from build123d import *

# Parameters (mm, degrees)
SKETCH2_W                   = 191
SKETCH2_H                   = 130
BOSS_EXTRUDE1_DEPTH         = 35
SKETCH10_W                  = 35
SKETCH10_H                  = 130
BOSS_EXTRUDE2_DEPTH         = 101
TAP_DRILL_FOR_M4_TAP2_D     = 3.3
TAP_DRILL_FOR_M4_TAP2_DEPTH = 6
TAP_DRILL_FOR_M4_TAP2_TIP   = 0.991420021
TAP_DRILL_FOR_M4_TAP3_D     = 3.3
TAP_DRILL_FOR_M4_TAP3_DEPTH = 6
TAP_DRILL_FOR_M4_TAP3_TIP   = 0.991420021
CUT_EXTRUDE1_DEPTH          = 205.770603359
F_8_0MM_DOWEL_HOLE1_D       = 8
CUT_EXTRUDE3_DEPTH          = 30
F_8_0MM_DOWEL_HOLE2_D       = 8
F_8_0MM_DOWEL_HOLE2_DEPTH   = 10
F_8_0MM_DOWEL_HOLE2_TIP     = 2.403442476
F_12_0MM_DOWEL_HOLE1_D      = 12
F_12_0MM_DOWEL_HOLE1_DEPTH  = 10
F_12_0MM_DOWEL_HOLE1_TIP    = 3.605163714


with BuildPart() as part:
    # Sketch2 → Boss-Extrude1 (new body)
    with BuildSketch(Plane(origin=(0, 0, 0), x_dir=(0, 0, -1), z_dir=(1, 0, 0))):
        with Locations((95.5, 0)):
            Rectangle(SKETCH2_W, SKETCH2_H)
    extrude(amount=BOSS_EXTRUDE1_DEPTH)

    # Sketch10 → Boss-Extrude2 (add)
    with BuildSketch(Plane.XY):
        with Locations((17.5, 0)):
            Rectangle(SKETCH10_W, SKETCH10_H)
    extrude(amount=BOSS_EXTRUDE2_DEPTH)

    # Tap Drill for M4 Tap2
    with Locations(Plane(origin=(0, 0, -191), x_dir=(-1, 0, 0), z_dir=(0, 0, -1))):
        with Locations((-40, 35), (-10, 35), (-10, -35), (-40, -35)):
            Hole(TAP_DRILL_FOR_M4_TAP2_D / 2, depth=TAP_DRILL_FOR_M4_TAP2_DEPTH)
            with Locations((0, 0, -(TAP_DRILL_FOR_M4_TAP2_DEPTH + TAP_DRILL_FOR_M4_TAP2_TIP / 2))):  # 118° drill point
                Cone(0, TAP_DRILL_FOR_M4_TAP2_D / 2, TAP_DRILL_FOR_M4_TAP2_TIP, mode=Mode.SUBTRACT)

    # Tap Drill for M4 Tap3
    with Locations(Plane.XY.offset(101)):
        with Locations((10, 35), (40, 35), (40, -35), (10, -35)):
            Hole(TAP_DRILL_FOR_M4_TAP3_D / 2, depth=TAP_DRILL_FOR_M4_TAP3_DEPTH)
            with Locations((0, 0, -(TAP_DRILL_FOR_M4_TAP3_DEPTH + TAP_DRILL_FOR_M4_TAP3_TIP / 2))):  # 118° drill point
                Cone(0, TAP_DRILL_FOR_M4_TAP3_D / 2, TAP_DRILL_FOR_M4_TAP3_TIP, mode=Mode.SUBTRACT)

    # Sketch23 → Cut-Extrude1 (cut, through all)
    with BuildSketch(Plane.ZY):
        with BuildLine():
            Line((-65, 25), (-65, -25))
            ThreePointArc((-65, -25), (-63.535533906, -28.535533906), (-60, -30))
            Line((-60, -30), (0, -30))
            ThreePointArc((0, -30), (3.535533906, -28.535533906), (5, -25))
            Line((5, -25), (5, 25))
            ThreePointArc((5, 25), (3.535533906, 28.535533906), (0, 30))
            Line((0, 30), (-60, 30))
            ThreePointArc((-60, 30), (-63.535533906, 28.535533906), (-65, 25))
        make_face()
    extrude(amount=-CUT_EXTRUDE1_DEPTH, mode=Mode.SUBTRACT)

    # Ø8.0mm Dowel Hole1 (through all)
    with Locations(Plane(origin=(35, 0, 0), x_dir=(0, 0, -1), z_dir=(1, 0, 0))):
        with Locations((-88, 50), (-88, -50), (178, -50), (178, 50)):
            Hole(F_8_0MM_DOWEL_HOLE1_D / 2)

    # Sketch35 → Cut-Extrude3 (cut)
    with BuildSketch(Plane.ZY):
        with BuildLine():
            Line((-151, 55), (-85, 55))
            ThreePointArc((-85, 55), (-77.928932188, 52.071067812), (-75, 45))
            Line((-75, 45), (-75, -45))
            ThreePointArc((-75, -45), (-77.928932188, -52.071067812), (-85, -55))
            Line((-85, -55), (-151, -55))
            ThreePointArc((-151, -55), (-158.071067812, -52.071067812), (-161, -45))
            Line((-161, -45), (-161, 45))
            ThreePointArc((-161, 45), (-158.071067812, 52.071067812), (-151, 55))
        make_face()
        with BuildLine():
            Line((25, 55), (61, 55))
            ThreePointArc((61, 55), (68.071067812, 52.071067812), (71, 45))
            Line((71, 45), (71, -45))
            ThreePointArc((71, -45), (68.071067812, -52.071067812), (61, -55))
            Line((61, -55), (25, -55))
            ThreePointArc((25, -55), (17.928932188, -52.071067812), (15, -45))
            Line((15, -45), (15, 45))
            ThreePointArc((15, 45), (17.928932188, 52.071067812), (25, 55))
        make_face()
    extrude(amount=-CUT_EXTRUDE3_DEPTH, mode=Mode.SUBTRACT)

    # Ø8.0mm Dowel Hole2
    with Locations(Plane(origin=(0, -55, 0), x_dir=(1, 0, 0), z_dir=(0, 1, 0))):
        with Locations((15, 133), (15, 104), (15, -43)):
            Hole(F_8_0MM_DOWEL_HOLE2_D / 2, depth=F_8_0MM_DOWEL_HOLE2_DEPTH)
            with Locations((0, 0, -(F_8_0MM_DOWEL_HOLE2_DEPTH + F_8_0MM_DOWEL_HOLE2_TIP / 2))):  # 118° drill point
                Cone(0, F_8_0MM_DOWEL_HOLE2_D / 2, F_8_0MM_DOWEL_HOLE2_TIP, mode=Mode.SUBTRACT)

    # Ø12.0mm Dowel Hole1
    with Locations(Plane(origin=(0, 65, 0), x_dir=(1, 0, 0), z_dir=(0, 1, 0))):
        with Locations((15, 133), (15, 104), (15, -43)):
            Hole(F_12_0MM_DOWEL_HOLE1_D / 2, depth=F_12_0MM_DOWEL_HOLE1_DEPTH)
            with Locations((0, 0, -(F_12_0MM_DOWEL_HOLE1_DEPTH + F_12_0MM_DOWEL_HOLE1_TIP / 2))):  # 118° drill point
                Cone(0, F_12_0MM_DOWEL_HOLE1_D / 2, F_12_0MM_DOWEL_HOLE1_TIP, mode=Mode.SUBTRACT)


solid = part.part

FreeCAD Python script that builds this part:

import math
import FreeCAD as App
import Part
import Sketcher
from FreeCAD import Vector


def add_polygon(sketch, points):
    """Adds a closed chain of lines whose ends are joined by coincident constraints."""
    first, n = sketch.GeometryCount, len(points)
    for a, b in zip(points, points[1:] + points[:1]):
        sketch.addGeometry(Part.LineSegment(App.Vector(*a, 0), App.Vector(*b, 0)), False)
    for i in range(n):
        sketch.addConstraint(Sketcher.Constraint("Coincident", first + i, 2, first + (i + 1) % n, 1))

doc = App.newDocument("Part")
body = doc.addObject("PartDesign::Body", "Body")

# Sketch on YZ plane
sketch1 = body.newObject("Sketcher::SketchObject", "Sketch")
sketch1.AttachmentSupport = (doc.getObject("YZ_Plane"), [""])
sketch1.MapMode = "FlatFace"
add_polygon(sketch1, [(65, 0), (-65, 0), (-65, -191), (65, -191)])  # lines 0-3
sketch1.addConstraint([
    Sketcher.Constraint("Horizontal", 0),
    Sketcher.Constraint("Vertical", 1),
    Sketcher.Constraint("Horizontal", 2),
    Sketcher.Constraint("Vertical", 3),
    Sketcher.Constraint("Symmetric", 0, 2, 3, 2, -1, 1),
    Sketcher.Constraint("DistanceX", 0, 2, 0, 1, 130.0),
    Sketcher.Constraint("DistanceY", 1, 2, 1, 1, 191.0),
])
pad1 = body.newObject("PartDesign::Pad", "Pad")
pad1.Profile = sketch1
pad1.Length = 35

# Sketch on XY plane
sketch2 = body.newObject("Sketcher::SketchObject", "Sketch001")
sketch2.AttachmentSupport = (doc.getObject("XY_Plane"), [""])
sketch2.MapMode = "FlatFace"
add_polygon(sketch2, [(0, 65), (0, -65), (35, -65), (35, 65)])  # lines 0-3
sketch2.addConstraint([
    Sketcher.Constraint("Vertical", 0),
    Sketcher.Constraint("Horizontal", 1),
    Sketcher.Constraint("Vertical", 2),
    Sketcher.Constraint("Horizontal", 3),
    Sketcher.Constraint("Symmetric", 0, 2, 3, 2, -1, 1),
    Sketcher.Constraint("DistanceX", 1, 1, 1, 2, 35.0),
    Sketcher.Constraint("DistanceY", 0, 2, 0, 1, 130.0),
])
pad2 = body.newObject("PartDesign::Pad", "Pad001")
pad2.Profile = sketch2
pad2.Length = 101

# Sketch on XY plane
sketch3 = body.newObject("Sketcher::SketchObject", "Sketch002")
sketch3.AttachmentSupport = (doc.getObject("XY_Plane"), [""])
sketch3.MapMode = "FlatFace"
sketch3.AttachmentOffset = App.Placement(Vector(0, 0, -191), App.Rotation())
sketch3.addGeometry([
    Part.Circle(Vector(40, 35, 0), Vector(0, 0, 1), 1.6),
    Part.Circle(Vector(10, 35, 0), Vector(0, 0, 1), 1.6),
    Part.Circle(Vector(10, -35, 0), Vector(0, 0, 1), 1.6),
    Part.Circle(Vector(40, -35, 0), Vector(0, 0, 1), 1.6),
], False)
sketch3.addConstraint([
    Sketcher.Constraint("Equal", 0, 1),
    Sketcher.Constraint("Equal", 1, 2),
    Sketcher.Constraint("Equal", 2, 3),
    Sketcher.Constraint("Symmetric", 1, 3, 2, 3, -1),
    Sketcher.Constraint("Symmetric", 0, 3, 3, 3, -1),
    Sketcher.Constraint("Horizontal", 0, 3, 1, 3),
    Sketcher.Constraint("Diameter", 0, 3.3),
    Sketcher.Constraint("DistanceX", -1, 1, 0, 3, 40.0),
    Sketcher.Constraint("DistanceY", -1, 1, 0, 3, 35.0),
    Sketcher.Constraint("DistanceX", -1, 1, 1, 3, 10.0),
])
doc.recompute()
hole = body.newObject("PartDesign::Hole", "Hole")
hole.Profile = sketch3
hole.ThreadType = "None"
hole.Diameter = 3.3
hole.DepthType = "Dimension"
hole.Depth = 6
hole.DrillPoint = "Angled"
hole.DrillPointAngle = 118
hole.Reversed = True

# Sketch on XY plane
sketch4 = body.newObject("Sketcher::SketchObject", "Sketch003")
sketch4.AttachmentSupport = (doc.getObject("XY_Plane"), [""])
sketch4.MapMode = "FlatFace"
sketch4.AttachmentOffset = App.Placement(Vector(0, 0, 101), App.Rotation())
sketch4.addGeometry([
    Part.Circle(Vector(10, 35, 0), Vector(0, 0, 1), 1.6),
    Part.Circle(Vector(40, 35, 0), Vector(0, 0, 1), 1.6),
    Part.Circle(Vector(40, -35, 0), Vector(0, 0, 1), 1.6),
    Part.Circle(Vector(10, -35, 0), Vector(0, 0, 1), 1.6),
], False)
sketch4.addConstraint([
    Sketcher.Constraint("Equal", 0, 1),
    Sketcher.Constraint("Equal", 1, 2),
    Sketcher.Constraint("Equal", 2, 3),
    Sketcher.Constraint("Symmetric", 1, 3, 2, 3, -1),
    Sketcher.Constraint("Symmetric", 0, 3, 3, 3, -1),
    Sketcher.Constraint("Horizontal", 0, 3, 1, 3),
    Sketcher.Constraint("Diameter", 0, 3.3),
    Sketcher.Constraint("DistanceX", -1, 1, 0, 3, 10.0),
    Sketcher.Constraint("DistanceY", -1, 1, 0, 3, 35.0),
    Sketcher.Constraint("DistanceX", -1, 1, 1, 3, 40.0),
])
doc.recompute()
hole2 = body.newObject("PartDesign::Hole", "Hole001")
hole2.Profile = sketch4
hole2.ThreadType = "None"
hole2.Diameter = 3.3
hole2.DepthType = "Dimension"
hole2.Depth = 6
hole2.DrillPoint = "Angled"
hole2.DrillPointAngle = 118

# Sketch on YZ plane
sketch5 = body.newObject("Sketcher::SketchObject", "Sketch004")
sketch5.AttachmentSupport = (doc.getObject("YZ_Plane"), [""])
sketch5.MapMode = "FlatFace"
sketch5.addGeometry([
    Part.LineSegment(Vector(25, -65, 0), Vector(-25, -65, 0)),  # 0
    Part.ArcOfCircle(Part.Circle(Vector(-25, -60, 0), Vector(0, 0, 1), 5), math.radians(180), math.radians(270)),  # 1
    Part.LineSegment(Vector(-30, -60, 0), Vector(-30, 0, 0)),  # 2
    Part.ArcOfCircle(Part.Circle(Vector(-25, 0, 0), Vector(0, 0, 1), 5), math.radians(90), math.radians(180)),  # 3
    Part.LineSegment(Vector(-25, 5, 0), Vector(25, 5, 0)),  # 4
    Part.ArcOfCircle(Part.Circle(Vector(25, 0, 0), Vector(0, 0, 1), 5), math.radians(0), math.radians(90)),  # 5
    Part.LineSegment(Vector(30, 0, 0), Vector(30, -60, 0)),  # 6
    Part.ArcOfCircle(Part.Circle(Vector(25, -60, 0), Vector(0, 0, 1), 5), math.radians(-90), math.radians(0)),  # 7
], False)
sketch5.addConstraint([
    Sketcher.Constraint("Tangent", 0, 2, 1, 2),
    Sketcher.Constraint("Tangent", 1, 1, 2, 1),
    Sketcher.Constraint("Tangent", 2, 2, 3, 2),
    Sketcher.Constraint("Tangent", 3, 1, 4, 1),
    Sketcher.Constraint("Tangent", 4, 2, 5, 2),
    Sketcher.Constraint("Tangent", 5, 1, 6, 1),
    Sketcher.Constraint("Tangent", 6, 2, 7, 2),
    Sketcher.Constraint("Tangent", 7, 1, 0, 1),
    Sketcher.Constraint("Horizontal", 0),
    Sketcher.Constraint("Vertical", 2),
    Sketcher.Constraint("Horizontal", 4),
    Sketcher.Constraint("Vertical", 6),
    Sketcher.Constraint("Equal", 1, 3),
    Sketcher.Constraint("Equal", 3, 5),
    Sketcher.Constraint("Equal", 5, 7),
    Sketcher.Constraint("Symmetric", 3, 3, 5, 3, -1, 1),
    Sketcher.Constraint("Radius", 1, 5.0),
    Sketcher.Constraint("DistanceX", 0, 2, 0, 1, 50.0),
    Sketcher.Constraint("DistanceY", 2, 1, 2, 2, 60.0),
])
pocket1 = body.newObject("PartDesign::Pocket", "Pocket")
pocket1.Profile = sketch5
pocket1.Type = "ThroughAll"
pocket1.Reversed = True

# Sketch on YZ plane
sketch6 = body.newObject("Sketcher::SketchObject", "Sketch005")
sketch6.AttachmentSupport = (doc.getObject("YZ_Plane"), [""])
sketch6.MapMode = "FlatFace"
sketch6.AttachmentOffset = App.Placement(Vector(0, 0, 35), App.Rotation())
sketch6.addGeometry([
    Part.Circle(Vector(50, 88, 0), Vector(0, 0, 1), 4),
    Part.Circle(Vector(-50, 88, 0), Vector(0, 0, 1), 4),
    Part.Circle(Vector(-50, -178, 0), Vector(0, 0, 1), 4),
    Part.Circle(Vector(50, -178, 0), Vector(0, 0, 1), 4),
], False)
sketch6.addConstraint([
    Sketcher.Constraint("Equal", 0, 1),
    Sketcher.Constraint("Equal", 1, 2),
    Sketcher.Constraint("Equal", 2, 3),
    Sketcher.Constraint("Symmetric", 0, 3, 1, 3, -2),
    Sketcher.Constraint("Symmetric", 2, 3, 3, 3, -2),
    Sketcher.Constraint("Vertical", 1, 3, 2, 3),
    Sketcher.Constraint("Diameter", 0, 8.0),
    Sketcher.Constraint("DistanceX", -1, 1, 0, 3, 50.0),
    Sketcher.Constraint("DistanceY", -1, 1, 0, 3, 88.0),
    Sketcher.Constraint("DistanceY", 2, 3, -1, 1, 178.0),
])
doc.recompute()
hole3 = body.newObject("PartDesign::Hole", "Hole002")
hole3.Profile = sketch6
hole3.ThreadType = "None"
hole3.Diameter = 8
hole3.DepthType = "ThroughAll"

# Sketch on YZ plane
sketch7 = body.newObject("Sketcher::SketchObject", "Sketch006")
sketch7.AttachmentSupport = (doc.getObject("YZ_Plane"), [""])
sketch7.MapMode = "FlatFace"
sketch7.addGeometry([
    Part.LineSegment(Vector(55, -85, 0), Vector(55, -151, 0)),  # 0
    Part.ArcOfCircle(Part.Circle(Vector(45, -151, 0), Vector(0, 0, 1), 10), math.radians(-90), math.radians(0)),  # 1
    Part.LineSegment(Vector(45, -161, 0), Vector(-45, -161, 0)),  # 2
    Part.ArcOfCircle(Part.Circle(Vector(-45, -151, 0), Vector(0, 0, 1), 10), math.radians(180), math.radians(270)),  # 3
    Part.LineSegment(Vector(-55, -151, 0), Vector(-55, -85, 0)),  # 4
    Part.ArcOfCircle(Part.Circle(Vector(-45, -85, 0), Vector(0, 0, 1), 10), math.radians(90), math.radians(180)),  # 5
    Part.LineSegment(Vector(-45, -75, 0), Vector(45, -75, 0)),  # 6
    Part.ArcOfCircle(Part.Circle(Vector(45, -85, 0), Vector(0, 0, 1), 10), math.radians(0), math.radians(90)),  # 7
    Part.LineSegment(Vector(55, 61, 0), Vector(55, 25, 0)),  # 8
    Part.ArcOfCircle(Part.Circle(Vector(45, 25, 0), Vector(0, 0, 1), 10), math.radians(-90), math.radians(0)),  # 9
    Part.LineSegment(Vector(45, 15, 0), Vector(-45, 15, 0)),  # 10
    Part.ArcOfCircle(Part.Circle(Vector(-45, 25, 0), Vector(0, 0, 1), 10), math.radians(180), math.radians(270)),  # 11
    Part.LineSegment(Vector(-55, 25, 0), Vector(-55, 61, 0)),  # 12
    Part.ArcOfCircle(Part.Circle(Vector(-45, 61, 0), Vector(0, 0, 1), 10), math.radians(90), math.radians(180)),  # 13
    Part.LineSegment(Vector(-45, 71, 0), Vector(45, 71, 0)),  # 14
    Part.ArcOfCircle(Part.Circle(Vector(45, 61, 0), Vector(0, 0, 1), 10), math.radians(0), math.radians(90)),  # 15
], False)
sketch7.addConstraint([
    Sketcher.Constraint("Tangent", 0, 2, 1, 2),
    Sketcher.Constraint("Tangent", 1, 1, 2, 1),
    Sketcher.Constraint("Tangent", 2, 2, 3, 2),
    Sketcher.Constraint("Tangent", 3, 1, 4, 1),
    Sketcher.Constraint("Tangent", 4, 2, 5, 2),
    Sketcher.Constraint("Tangent", 5, 1, 6, 1),
    Sketcher.Constraint("Tangent", 6, 2, 7, 2),
    Sketcher.Constraint("Tangent", 7, 1, 0, 1),
    Sketcher.Constraint("Tangent", 8, 2, 9, 2),
    Sketcher.Constraint("Tangent", 9, 1, 10, 1),
    Sketcher.Constraint("Tangent", 10, 2, 11, 2),
    Sketcher.Constraint("Tangent", 11, 1, 12, 1),
    Sketcher.Constraint("Tangent", 12, 2, 13, 2),
    Sketcher.Constraint("Tangent", 13, 1, 14, 1),
    Sketcher.Constraint("Tangent", 14, 2, 15, 2),
    Sketcher.Constraint("Tangent", 15, 1, 8, 1),
    Sketcher.Constraint("Vertical", 0),
    Sketcher.Constraint("Horizontal", 2),
    Sketcher.Constraint("Vertical", 4),
    Sketcher.Constraint("Horizontal", 6),
    Sketcher.Constraint("Vertical", 8),
    Sketcher.Constraint("Horizontal", 10),
    Sketcher.Constraint("Vertical", 12),
    Sketcher.Constraint("Horizontal", 14),
    Sketcher.Constraint("Equal", 1, 3),
    Sketcher.Constraint("Equal", 3, 5),
    Sketcher.Constraint("Equal", 5, 7),
    Sketcher.Constraint("Equal", 7, 9),
    Sketcher.Constraint("Equal", 9, 11),
    Sketcher.Constraint("Equal", 11, 13),
    Sketcher.Constraint("Equal", 13, 15),
    Sketcher.Constraint("Vertical", 7, 3, 9, 3),
    Sketcher.Constraint("Vertical", 5, 3, 11, 3),
    Sketcher.Constraint("Radius", 1, 10.0),
    Sketcher.Constraint("DistanceX", 2, 2, 2, 1, 90.0),
    Sketcher.Constraint("DistanceY", 0, 2, 0, 1, 66.0),
    Sketcher.Constraint("DistanceY", 8, 2, 8, 1, 36.0),
    Sketcher.Constraint("DistanceX", -1, 1, 1, 3, 45.0),
    Sketcher.Constraint("DistanceY", 1, 3, -1, 1, 151.0),
    Sketcher.Constraint("DistanceY", -1, 1, 9, 3, 25.0),
])
pocket2 = body.newObject("PartDesign::Pocket", "Pocket001")
pocket2.Profile = sketch7
pocket2.Length = 30
pocket2.Reversed = True

# Sketch on XZ plane
sketch8 = body.newObject("Sketcher::SketchObject", "Sketch007")
sketch8.AttachmentSupport = (doc.getObject("XZ_Plane"), [""])
sketch8.MapMode = "FlatFace"
sketch8.AttachmentOffset = App.Placement(Vector(0, 0, 55), App.Rotation())
sketch8.addGeometry([
    Part.Circle(Vector(15, -133, 0), Vector(0, 0, 1), 4),
    Part.Circle(Vector(15, -104, 0), Vector(0, 0, 1), 4),
    Part.Circle(Vector(15, 43, 0), Vector(0, 0, 1), 4),
], False)
sketch8.addConstraint([
    Sketcher.Constraint("Equal", 0, 1),
    Sketcher.Constraint("Equal", 1, 2),
    Sketcher.Constraint("Vertical", 0, 3, 1, 3),
    Sketcher.Constraint("Vertical", 1, 3, 2, 3),
    Sketcher.Constraint("Diameter", 0, 8.0),
    Sketcher.Constraint("DistanceX", -1, 1, 0, 3, 15.0),
    Sketcher.Constraint("DistanceY", 0, 3, -1, 1, 133.0),
    Sketcher.Constraint("DistanceY", 1, 3, -1, 1, 104.0),
    Sketcher.Constraint("DistanceY", -1, 1, 2, 3, 43.0),
])
doc.recompute()
hole4 = body.newObject("PartDesign::Hole", "Hole003")
hole4.Profile = sketch8
hole4.ThreadType = "None"
hole4.Diameter = 8
hole4.DepthType = "Dimension"
hole4.Depth = 10
hole4.DrillPoint = "Angled"
hole4.DrillPointAngle = 118
hole4.Reversed = True

# Sketch on XZ plane
sketch9 = body.newObject("Sketcher::SketchObject", "Sketch008")
sketch9.AttachmentSupport = (doc.getObject("XZ_Plane"), [""])
sketch9.MapMode = "FlatFace"
sketch9.AttachmentOffset = App.Placement(Vector(0, 0, -65), App.Rotation())
sketch9.addGeometry([
    Part.Circle(Vector(15, -133, 0), Vector(0, 0, 1), 6),
    Part.Circle(Vector(15, -104, 0), Vector(0, 0, 1), 6),
    Part.Circle(Vector(15, 43, 0), Vector(0, 0, 1), 6),
], False)
sketch9.addConstraint([
    Sketcher.Constraint("Equal", 0, 1),
    Sketcher.Constraint("Equal", 1, 2),
    Sketcher.Constraint("Vertical", 0, 3, 1, 3),
    Sketcher.Constraint("Vertical", 1, 3, 2, 3),
    Sketcher.Constraint("Diameter", 0, 12.0),
    Sketcher.Constraint("DistanceX", -1, 1, 0, 3, 15.0),
    Sketcher.Constraint("DistanceY", 0, 3, -1, 1, 133.0),
    Sketcher.Constraint("DistanceY", 1, 3, -1, 1, 104.0),
    Sketcher.Constraint("DistanceY", -1, 1, 2, 3, 43.0),
])
doc.recompute()
hole5 = body.newObject("PartDesign::Hole", "Hole004")
hole5.Profile = sketch9
hole5.ThreadType = "None"
hole5.Diameter = 12
hole5.DepthType = "Dimension"
hole5.Depth = 10
hole5.DrillPoint = "Angled"
hole5.DrillPointAngle = 118
hole5.Reversed = True

doc.recompute()
